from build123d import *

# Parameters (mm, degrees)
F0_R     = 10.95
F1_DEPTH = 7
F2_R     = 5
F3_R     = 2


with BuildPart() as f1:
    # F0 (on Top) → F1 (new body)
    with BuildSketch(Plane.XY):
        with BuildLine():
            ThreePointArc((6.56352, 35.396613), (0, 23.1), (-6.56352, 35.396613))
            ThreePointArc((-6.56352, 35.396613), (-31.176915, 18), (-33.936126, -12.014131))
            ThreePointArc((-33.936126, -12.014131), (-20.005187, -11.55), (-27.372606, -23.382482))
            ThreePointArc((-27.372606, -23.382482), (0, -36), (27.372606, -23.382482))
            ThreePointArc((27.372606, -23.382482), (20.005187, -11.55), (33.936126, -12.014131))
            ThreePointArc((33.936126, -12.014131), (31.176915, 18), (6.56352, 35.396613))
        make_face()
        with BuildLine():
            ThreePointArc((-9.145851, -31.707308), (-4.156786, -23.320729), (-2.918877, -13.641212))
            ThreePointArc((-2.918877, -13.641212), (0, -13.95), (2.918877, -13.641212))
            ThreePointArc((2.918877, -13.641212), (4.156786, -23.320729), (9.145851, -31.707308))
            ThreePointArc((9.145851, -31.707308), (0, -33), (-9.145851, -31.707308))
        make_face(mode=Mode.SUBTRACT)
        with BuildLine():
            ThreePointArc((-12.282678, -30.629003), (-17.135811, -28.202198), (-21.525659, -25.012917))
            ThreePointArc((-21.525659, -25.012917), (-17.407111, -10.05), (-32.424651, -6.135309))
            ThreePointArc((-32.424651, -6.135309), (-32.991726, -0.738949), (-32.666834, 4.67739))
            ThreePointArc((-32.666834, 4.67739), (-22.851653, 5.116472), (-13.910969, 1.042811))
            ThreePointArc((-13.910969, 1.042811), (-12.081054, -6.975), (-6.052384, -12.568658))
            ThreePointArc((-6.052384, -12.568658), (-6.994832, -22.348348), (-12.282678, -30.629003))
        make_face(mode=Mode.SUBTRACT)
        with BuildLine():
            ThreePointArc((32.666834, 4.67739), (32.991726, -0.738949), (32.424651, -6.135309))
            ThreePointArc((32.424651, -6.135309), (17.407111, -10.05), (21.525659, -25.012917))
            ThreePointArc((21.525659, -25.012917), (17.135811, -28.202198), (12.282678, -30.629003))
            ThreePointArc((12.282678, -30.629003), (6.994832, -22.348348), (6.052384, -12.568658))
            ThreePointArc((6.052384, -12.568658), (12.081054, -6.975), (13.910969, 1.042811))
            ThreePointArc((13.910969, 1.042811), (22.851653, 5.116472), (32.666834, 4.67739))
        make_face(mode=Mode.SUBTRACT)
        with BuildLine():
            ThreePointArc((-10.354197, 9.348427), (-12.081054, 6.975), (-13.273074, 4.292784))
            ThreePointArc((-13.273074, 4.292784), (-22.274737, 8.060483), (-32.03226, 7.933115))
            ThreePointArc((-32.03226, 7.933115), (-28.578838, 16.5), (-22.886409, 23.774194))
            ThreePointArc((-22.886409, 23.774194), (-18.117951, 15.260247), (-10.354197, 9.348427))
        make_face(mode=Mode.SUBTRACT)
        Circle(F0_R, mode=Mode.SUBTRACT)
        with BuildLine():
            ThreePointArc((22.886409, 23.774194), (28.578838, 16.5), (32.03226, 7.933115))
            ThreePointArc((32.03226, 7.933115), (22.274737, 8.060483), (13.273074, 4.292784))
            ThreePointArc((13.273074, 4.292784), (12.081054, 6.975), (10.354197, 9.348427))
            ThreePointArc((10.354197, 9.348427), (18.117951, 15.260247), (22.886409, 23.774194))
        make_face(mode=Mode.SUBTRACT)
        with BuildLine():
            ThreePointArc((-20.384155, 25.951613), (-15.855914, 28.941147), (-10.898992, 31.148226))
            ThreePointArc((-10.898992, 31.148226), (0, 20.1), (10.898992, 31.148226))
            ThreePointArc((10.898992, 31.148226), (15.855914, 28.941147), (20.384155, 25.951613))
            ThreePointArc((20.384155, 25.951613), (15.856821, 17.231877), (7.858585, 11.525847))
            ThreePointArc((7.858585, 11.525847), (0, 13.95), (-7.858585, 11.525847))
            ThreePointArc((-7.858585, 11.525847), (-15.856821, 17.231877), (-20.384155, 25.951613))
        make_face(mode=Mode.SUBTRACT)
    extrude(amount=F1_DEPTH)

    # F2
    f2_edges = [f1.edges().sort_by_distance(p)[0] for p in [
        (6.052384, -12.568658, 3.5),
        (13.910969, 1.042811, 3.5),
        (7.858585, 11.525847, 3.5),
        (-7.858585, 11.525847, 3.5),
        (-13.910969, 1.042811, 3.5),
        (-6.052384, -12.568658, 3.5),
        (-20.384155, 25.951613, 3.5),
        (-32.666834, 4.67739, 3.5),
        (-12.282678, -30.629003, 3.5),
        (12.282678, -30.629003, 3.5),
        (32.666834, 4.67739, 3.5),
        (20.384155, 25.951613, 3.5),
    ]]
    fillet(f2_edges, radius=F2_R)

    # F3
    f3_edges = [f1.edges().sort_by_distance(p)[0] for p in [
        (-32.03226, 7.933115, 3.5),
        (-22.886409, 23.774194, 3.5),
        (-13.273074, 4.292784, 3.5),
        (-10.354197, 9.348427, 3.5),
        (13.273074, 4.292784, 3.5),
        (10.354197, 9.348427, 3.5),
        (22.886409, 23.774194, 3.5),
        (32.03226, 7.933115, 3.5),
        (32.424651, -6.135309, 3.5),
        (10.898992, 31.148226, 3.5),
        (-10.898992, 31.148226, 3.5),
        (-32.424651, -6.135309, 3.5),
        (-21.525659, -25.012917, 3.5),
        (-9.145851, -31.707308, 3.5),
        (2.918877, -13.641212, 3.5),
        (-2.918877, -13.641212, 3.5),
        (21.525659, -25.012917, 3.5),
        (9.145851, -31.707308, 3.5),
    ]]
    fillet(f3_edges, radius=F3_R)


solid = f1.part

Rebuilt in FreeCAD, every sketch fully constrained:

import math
import FreeCAD as App
import Part
import Sketcher

V = App.Vector


def edges_at(feature, points):
    """Names of the edges that pass closest to the given points."""
    edges = feature.Shape.Edges
    near = lambda p: min(range(len(edges)), key=lambda i: edges[i].distToShape(Part.Vertex(*p))[0])
    return sorted({f"Edge{near(p) + 1}" for p in points})

doc = App.newDocument("Part")
body = doc.addObject("PartDesign::Body", "Body")

# Sketch on XY plane
sketch1 = doc.addObject("Sketcher::SketchObject", "Sketch")
body.addObject(sketch1)
sketch1.AttachmentSupport = (doc.XY_Plane, [""])
sketch1.MapMode = "FlatFace"
sketch1.addGeometry([
    Part.ArcOfCircle(Part.Circle(V(0, 31, 0), V(0, 0, 1), 7.9), math.radians(146.183611), math.radians(393.816389)),  # 0
    Part.ArcOfCircle(Part.Circle(V(-0.000001, 0.000001, 0), V(0, 0, 1), 35.999999), math.radians(100.504921), math.radians(199.495078)),  # 1
    Part.ArcOfCircle(Part.Circle(V(-26.846788, -15.5, 0), V(0, 0, 1), 7.9), math.radians(-93.816387), math.radians(153.816383)),  # 2
    Part.ArcOfCircle(Part.Circle(V(0, 0.000001, 0), V(0, 0, 1), 36.000001), math.radians(-139.495076), math.radians(-40.504924)),  # 3
    Part.ArcOfCircle(Part.Circle(V(26.846788, -15.5, 0), V(0, 0, 1), 7.9), math.radians(26.183617), math.radians(273.816387)),  # 4
    Part.ArcOfCircle(Part.Circle(V(0.000001, 0.000001, 0), V(0, 0, 1), 35.999999), math.radians(-19.495078), math.radians(79.495079)),  # 5
    Part.ArcOfCircle(Part.Circle(V(-26.846786, -15.500001, 0), V(0, 0, 1), 20.999999), math.radians(-46.089886), math.radians(8.023994)),  # 6
    Part.ArcOfCircle(Part.Circle(V(0.00001, 0.000017, 0), V(0, 0, 1), 33.000019), math.radians(-130.714679), math.radians(-111.851512)),  # 7
    Part.ArcOfCircle(Part.Circle(V(-26.846788, -15.5, 0), V(0, 0, 1), 10.9), math.radians(-60.779172), math.radians(120.779172)),  # 8
    Part.ArcOfCircle(Part.Circle(V(-0.000017, 0, 0), V(0, 0, 1), 32.999983), math.radians(171.851504), math.radians(190.714691)),  # 9
    Part.ArcOfCircle(Part.Circle(V(-26.846787, -15.499997, 0), V(0, 0, 1), 20.999997), math.radians(51.976005), math.radians(106.08989)),  # 10
    Part.ArcOfCircle(Part.Circle(V(0.000004, 0.000002, 0), V(0, 0, 1), 13.950005), math.radians(175.712953), math.radians(244.287045)),  # 11
    Part.ArcOfCircle(Part.Circle(V(0, -0.000011, 0), V(0, 0, 1), 32.999989), math.radians(-106.090008), math.radians(-73.909992)),  # 12
    Part.ArcOfCircle(Part.Circle(V(-26.846792, -15.499998, 0), V(0, 0, 1), 24.000004), math.radians(-42.477797), math.radians(4.441973)),  # 13
    Part.ArcOfCircle(Part.Circle(V(0, 0.000013, 0), V(0, 0, 1), 13.950013), math.radians(-102.077719), math.radians(-77.922281)),  # 14
    Part.ArcOfCircle(Part.Circle(V(26.846792, -15.499998, 0), V(0, 0, 1), 24.000004), math.radians(175.558027), math.radians(222.477797)),  # 15
    Part.ArcOfCircle(Part.Circle(V(26.846787, -15.499997, 0), V(0, 0, 1), 20.999997), math.radians(73.91011), math.radians(128.023995)),  # 16
    Part.ArcOfCircle(Part.Circle(V(0.000017, 0, 0), V(0, 0, 1), 32.999983), math.radians(-10.714691), math.radians(8.148496)),  # 17
    Part.ArcOfCircle(Part.Circle(V(26.846788, -15.5, 0), V(0, 0, 1), 10.9), math.radians(59.220828), math.radians(240.779172)),  # 18
    Part.ArcOfCircle(Part.Circle(V(-0.00001, 0.000017, 0), V(0, 0, 1), 33.000019), math.radians(-68.148488), math.radians(-49.285321)),  # 19
    Part.ArcOfCircle(Part.Circle(V(26.846786, -15.500001, 0), V(0, 0, 1), 20.999999), math.radians(171.976006), math.radians(226.089886)),  # 20
    Part.ArcOfCircle(Part.Circle(V(-0.000004, 0.000002, 0), V(0, 0, 1), 13.950005), math.radians(-64.287045), math.radians(4.287047)),  # 21
    Part.ArcOfCircle(Part.Circle(V(0.000005, 31.000004, 0), V(0, 0, 1), 24.000006), math.radians(-162.477798), math.radians(-115.558027)),  # 22
    Part.ArcOfCircle(Part.Circle(V(-0.000008, 0.000004, 0), V(0, 0, 1), 13.949991), math.radians(137.922261), math.radians(162.077736)),  # 23
    Part.ArcOfCircle(Part.Circle(V(-26.846787, -15.499999, 0), V(0, 0, 1), 23.999999), math.radians(55.558019), math.radians(102.477803)),  # 24
    Part.ArcOfCircle(Part.Circle(V(0.000008, -0.000004, 0), V(0, 0, 1), 33.000009), math.radians(133.910003), math.radians(166.089999)),  # 25
    Part.Circle(V(0, 0, 0), V(0, 0, 1), 10.95),  # 26
    Part.ArcOfCircle(Part.Circle(V(-0.000005, 31.000004, 0), V(0, 0, 1), 24.000006), math.radians(-64.441973), math.radians(-17.522202)),  # 27
    Part.ArcOfCircle(Part.Circle(V(-0.000008, -0.000004, 0), V(0, 0, 1), 33.000009), math.radians(13.910001), math.radians(46.089997)),  # 28
    Part.ArcOfCircle(Part.Circle(V(26.846787, -15.499999, 0), V(0, 0, 1), 23.999999), math.radians(77.522197), math.radians(124.441981)),  # 29
    Part.ArcOfCircle(Part.Circle(V(0.000008, 0.000004, 0), V(0, 0, 1), 13.949991), math.radians(17.922264), math.radians(42.077739)),  # 30
    Part.ArcOfCircle(Part.Circle(V(0.000001, 31.000001, 0), V(0, 0, 1), 21.000001), math.radians(-166.089885), math.radians(-111.976012)),  # 31
    Part.ArcOfCircle(Part.Circle(V(0.000002, -0.000002, 0), V(0, 0, 1), 33.000003), math.radians(109.285317), math.radians(128.148492)),  # 32
    Part.ArcOfCircle(Part.Circle(V(0, 31, 0), V(0, 0, 1), 10.9), math.radians(179.220826), math.radians(360.779174)),  # 33
    Part.ArcOfCircle(Part.Circle(V(-0.000002, -0.000002, 0), V(0, 0, 1), 33.000003), math.radians(51.851508), math.radians(70.714683)),  # 34
    Part.ArcOfCircle(Part.Circle(V(-0.000001, 31.000001, 0), V(0, 0, 1), 21.000001), math.radians(-68.023988), math.radians(-13.910115)),  # 35
    Part.ArcOfCircle(Part.Circle(V(0, -0.000001, 0), V(0, 0, 1), 13.950001), math.radians(55.712947), math.radians(124.287053)),  # 36
], False)
sketch1.addConstraint([
    Sketcher.Constraint("Coincident", 0, 1, 1, 1),
    Sketcher.Constraint("Coincident", 1, 2, 2, 2),
    Sketcher.Constraint("Coincident", 2, 1, 3, 1),
    Sketcher.Constraint("Coincident", 3, 2, 4, 2),
    Sketcher.Constraint("Coincident", 4, 1, 5, 1),
    Sketcher.Constraint("Coincident", 5, 2, 0, 2),
    Sketcher.Constraint("Coincident", 6, 1, 7, 2),
    Sketcher.Constraint("Coincident", 7, 1, 8, 1),
    Sketcher.Constraint("Coincident", 8, 2, 9, 2),
    Sketcher.Constraint("Coincident", 9, 1, 10, 2),
    Sketcher.Constraint("Coincident", 10, 1, 11, 1),
    Sketcher.Constraint("Coincident", 11, 2, 6, 2),
    Sketcher.Constraint("Coincident", 12, 1, 13, 1),
    Sketcher.Constraint("Coincident", 13, 2, 14, 1),
    Sketcher.Constraint("Coincident", 14, 2, 15, 1),
    Sketcher.Constraint("Coincident", 15, 2, 12, 2),
    Sketcher.Constraint("Coincident", 16, 1, 17, 2),
    Sketcher.Constraint("Coincident", 17, 1, 18, 1),
    Sketcher.Constraint("Coincident", 18, 2, 19, 2),
    Sketcher.Constraint("Coincident", 19, 1, 20, 2),
    Sketcher.Constraint("Coincident", 20, 1, 21, 1),
    Sketcher.Constraint("Coincident", 21, 2, 16, 2),
    Sketcher.Constraint("Coincident", 22, 2, 23, 1),
    Sketcher.Constraint("Coincident", 23, 2, 24, 1),
    Sketcher.Constraint("Coincident", 24, 2, 25, 2),
    Sketcher.Constraint("Coincident", 25, 1, 22, 1),
    Sketcher.Constraint("Coincident", 27, 2, 28, 2),
    Sketcher.Constraint("Coincident", 28, 1, 29, 1),
    Sketcher.Constraint("Coincident", 29, 2, 30, 1),
    Sketcher.Constraint("Coincident", 30, 2, 27, 1),
    Sketcher.Constraint("Coincident", 31, 1, 32, 2),
    Sketcher.Constraint("Coincident", 32, 1, 33, 1),
    Sketcher.Constraint("Coincident", 33, 2, 34, 2),
    Sketcher.Constraint("Coincident", 34, 1, 35, 2),
    Sketcher.Constraint("Coincident", 35, 1, 36, 1),
    Sketcher.Constraint("Coincident", 36, 2, 31, 2),
    Sketcher.Constraint("Coincident", 1, 3, -1, 1),
    Sketcher.Constraint("Coincident", 3, 3, -1, 1),
    Sketcher.Constraint("Coincident", 5, 3, -1, 1),
    Sketcher.Constraint("Coincident", 11, 3, -1, 1),
    Sketcher.Constraint("Coincident", 21, 3, -1, 1),
    Sketcher.Constraint("Coincident", 23, 3, -1, 1),
    Sketcher.Constraint("Coincident", 25, 3, -1, 1),
    Sketcher.Constraint("Coincident", 26, 3, -1, 1),
    Sketcher.Constraint("Coincident", 28, 3, -1, 1),
    Sketcher.Constraint("Coincident", 30, 3, -1, 1),
    Sketcher.Constraint("Coincident", 32, 3, -1, 1),
    Sketcher.Constraint("Coincident", 34, 3, -1, 1),
    Sketcher.Constraint("Coincident", 36, 3, -1, 1),
    Sketcher.Constraint("Coincident", 6, 3, 2, 3),
    Sketcher.Constraint("Coincident", 8, 3, 2, 3),
    Sketcher.Constraint("Coincident", 10, 3, 2, 3),
    Sketcher.Constraint("Coincident", 13, 3, 2, 3),
    Sketcher.Constraint("Coincident", 15, 3, 4, 3),
    Sketcher.Constraint("Coincident", 16, 3, 4, 3),
    Sketcher.Constraint("Coincident", 18, 3, 4, 3),
    Sketcher.Constraint("Coincident", 20, 3, 4, 3),
    Sketcher.Constraint("Coincident", 22, 3, 0, 3),
    Sketcher.Constraint("Coincident", 24, 3, 2, 3),
    Sketcher.Constraint("Coincident", 27, 3, 0, 3),
    Sketcher.Constraint("Coincident", 29, 3, 4, 3),
    Sketcher.Constraint("Coincident", 31, 3, 0, 3),
    Sketcher.Constraint("Coincident", 33, 3, 0, 3),
    Sketcher.Constraint("Coincident", 35, 3, 0, 3),
    Sketcher.Constraint("PointOnObject", 0, 3, -2),
    Sketcher.Constraint("PointOnObject", 9, 3, -1),
    Sketcher.Constraint("PointOnObject", 12, 3, -2),
    Sketcher.Constraint("PointOnObject", 14, 3, -2),
    Sketcher.Constraint("PointOnObject", 17, 3, -1),
    Sketcher.Constraint("Radius", 1, 35.999999),
    Sketcher.Constraint("Radius", 3, 36.000001),
    Sketcher.Constraint("Radius", 5, 35.999999),
    Sketcher.Constraint("Radius", 6, 20.999999),
    Sketcher.Constraint("Radius", 20, 20.999999),
    Sketcher.Constraint("Radius", 24, 23.999999),
    Sketcher.Constraint("Radius", 29, 23.999999),
    Sketcher.Constraint("Radius", 31, 21.000001),
    Sketcher.Constraint("Radius", 35, 21.000001),
    Sketcher.Constraint("Diameter", 26, 21.9),
    Sketcher.Constraint("Radius", 0, 7.9),
    Sketcher.Constraint("Radius", 2, 7.9),
    Sketcher.Constraint("Radius", 4, 7.9),
    Sketcher.Constraint("Radius", 8, 10.9),
    Sketcher.Constraint("Radius", 18, 10.9),
    Sketcher.Constraint("Radius", 33, 10.9),
    Sketcher.Constraint("Radius", 36, 13.950001),
    Sketcher.Constraint("DistanceY", -1, 1, 0, 3, 31.0),
    Sketcher.Constraint("DistanceY", 2, 3, -1, 1, 15.5),
    Sketcher.Constraint("DistanceY", 4, 3, -1, 1, 15.5),
    Sketcher.Constraint("Radius", 7, 33.000019),
    Sketcher.Constraint("Radius", 12, 32.999989),
    Sketcher.Constraint("Radius", 19, 33.000019),
    Sketcher.Constraint("Radius", 23, 13.949991),
    Sketcher.Constraint("Radius", 25, 33.000009),
    Sketcher.Constraint("Radius", 28, 33.000009),
    Sketcher.Constraint("Radius", 30, 13.949991),
    Sketcher.Constraint("Radius", 9, 32.999983),
    Sketcher.Constraint("Radius", 10, 20.999997),
    Sketcher.Constraint("Radius", 11, 13.950005),
    Sketcher.Constraint("Radius", 13, 24.000004),
    Sketcher.Constraint("Radius", 14, 13.950013),
    Sketcher.Constraint("Radius", 15, 24.000004),
    Sketcher.Constraint("Radius", 16, 20.999997),
    Sketcher.Constraint("Radius", 17, 32.999983),
    Sketcher.Constraint("Radius", 21, 13.950005),
    Sketcher.Constraint("Radius", 22, 24.000006),
    Sketcher.Constraint("Radius", 27, 24.000006),
    Sketcher.Constraint("Radius", 32, 33.000003),
    Sketcher.Constraint("Radius", 34, 33.000003),
    Sketcher.Constraint("DistanceY", 1, 2, -1, 1, 12.014131),
    Sketcher.Constraint("DistanceY", 4, 1, -1, 1, 12.014131),
    Sketcher.Constraint("DistanceX", 7, 1, -1, 1, 21.525659),
    Sketcher.Constraint("DistanceX", 8, 2, -1, 1, 32.424651),
    Sketcher.Constraint("DistanceX", 12, 1, -1, 1, 9.145851),
    Sketcher.Constraint("DistanceY", 13, 2, -1, 1, 13.641212),
    Sketcher.Constraint("DistanceY", -1, 1, 16, 1, 4.67739),
    Sketcher.Constraint("DistanceX", -1, 1, 18, 2, 21.525659),
    Sketcher.Constraint("DistanceX", 6, 1, -1, 1, 12.282678),
    Sketcher.Constraint("DistanceX", -1, 1, 19, 1, 12.282678),
])
pad1 = doc.addObject("PartDesign::Pad", "Pad")
body.addObject(pad1)
pad1.Profile = sketch1
pad1.Length = 7
doc.recompute()

fillet = doc.addObject("PartDesign::Fillet", "Fillet")
body.addObject(fillet)
fillet.Base = (pad1, edges_at(pad1, [
    (6.052, -12.569, 3.5),
    (13.911, 1.043, 3.5),
    (7.859, 11.526, 3.5),
    (-7.859, 11.526, 3.5),
    (-13.911, 1.043, 3.5),
    (-6.052, -12.569, 3.5),
    (-20.384, 25.952, 3.5),
    (-32.667, 4.677, 3.5),
    (-12.283, -30.629, 3.5),
    (12.283, -30.629, 3.5),
    (32.667, 4.677, 3.5),
    (20.384, 25.952, 3.5),
]))
fillet.Radius = 5
doc.recompute()

fillet2 = doc.addObject("PartDesign::Fillet", "Fillet001")
body.addObject(fillet2)
fillet2.Base = (fillet, edges_at(fillet, [
    (-32.032, 7.933, 3.5),
    (-22.886, 23.774, 3.5),
    (-13.273, 4.293, 3.5),
    (-10.354, 9.348, 3.5),
    (13.273, 4.293, 3.5),
    (10.354, 9.348, 3.5),
    (22.886, 23.774, 3.5),
    (32.032, 7.933, 3.5),
    (32.425, -6.135, 3.5),
    (10.899, 31.148, 3.5),
    (-10.899, 31.148, 3.5),
    (-32.425, -6.135, 3.5),
    (-21.526, -25.013, 3.5),
    (-9.146, -31.707, 3.5),
    (2.919, -13.641, 3.5),
    (-2.919, -13.641, 3.5),
    (21.526, -25.013, 3.5),
    (9.146, -31.707, 3.5),
]))
fillet2.Radius = 2

doc.recompute()
